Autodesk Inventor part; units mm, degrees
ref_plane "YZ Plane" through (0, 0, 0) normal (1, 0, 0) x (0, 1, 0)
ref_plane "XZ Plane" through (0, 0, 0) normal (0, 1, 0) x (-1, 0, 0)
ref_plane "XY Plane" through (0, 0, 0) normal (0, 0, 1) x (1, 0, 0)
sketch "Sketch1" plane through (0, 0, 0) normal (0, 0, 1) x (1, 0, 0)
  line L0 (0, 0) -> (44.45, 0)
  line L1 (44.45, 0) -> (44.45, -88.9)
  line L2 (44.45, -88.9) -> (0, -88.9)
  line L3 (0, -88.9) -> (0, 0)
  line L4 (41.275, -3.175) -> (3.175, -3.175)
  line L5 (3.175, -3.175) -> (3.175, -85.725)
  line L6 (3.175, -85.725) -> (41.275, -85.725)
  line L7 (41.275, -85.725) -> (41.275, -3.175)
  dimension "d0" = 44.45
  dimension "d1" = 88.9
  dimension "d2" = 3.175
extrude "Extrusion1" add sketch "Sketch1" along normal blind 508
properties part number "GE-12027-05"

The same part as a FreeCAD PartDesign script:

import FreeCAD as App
import Part
import Sketcher
Q = App.Units.Quantity

doc = App.newDocument("Part")
body = doc.addObject("PartDesign::Body", "Body")

# Sketch on XY plane
sketch1 = body.newObject("Sketcher::SketchObject", "Sketch")
sketch1.AttachmentSupport = (doc.getObject("XY_Plane"), [""])
sketch1.MapMode = "FlatFace"
sketch1.addGeometry([
    Part.LineSegment(App.Vector(44, 0, 0), App.Vector(0, 0, 0)),  # 0
    Part.LineSegment(App.Vector(0, 0, 0), App.Vector(0, -89, 0)),  # 1
    Part.LineSegment(App.Vector(0, -89, 0), App.Vector(44, -89, 0)),  # 2
    Part.LineSegment(App.Vector(44, -89, 0), App.Vector(44, 0, 0)),  # 3
    Part.LineSegment(App.Vector(3, -3, 0), App.Vector(41, -3, 0)),  # 4
    Part.LineSegment(App.Vector(41, -3, 0), App.Vector(41, -86, 0)),  # 5
    Part.LineSegment(App.Vector(41, -86, 0), App.Vector(3, -86, 0)),  # 6
    Part.LineSegment(App.Vector(3, -86, 0), App.Vector(3, -3, 0)),  # 7
], False)
sketch1.addConstraint([
    Sketcher.Constraint("Coincident", 0, 2, 1, 1),
    Sketcher.Constraint("Coincident", 1, 2, 2, 1),
    Sketcher.Constraint("Coincident", 2, 2, 3, 1),
    Sketcher.Constraint("Coincident", 3, 2, 0, 1),
    Sketcher.Constraint("Coincident", 4, 2, 5, 1),
    Sketcher.Constraint("Coincident", 5, 2, 6, 1),
    Sketcher.Constraint("Coincident", 6, 2, 7, 1),
    Sketcher.Constraint("Coincident", 7, 2, 4, 1),
    Sketcher.Constraint("Horizontal", 0),
    Sketcher.Constraint("Vertical", 1),
    Sketcher.Constraint("Horizontal", 2),
    Sketcher.Constraint("Vertical", 3),
    Sketcher.Constraint("Horizontal", 4),
    Sketcher.Constraint("Vertical", 5),
    Sketcher.Constraint("Horizontal", 6),
    Sketcher.Constraint("Vertical", 7),
    Sketcher.Constraint("Coincident", 0, 2, -1, 1),
    Sketcher.Constraint("DistanceY", 1, 2, 1, 1, Q("3.5 in")),
    Sketcher.Constraint("DistanceX", 0, 2, 0, 1, Q("1.75 in")),
    Sketcher.Constraint("DistanceX", 4, 1, 4, 2, Q("1.5 in")),
    Sketcher.Constraint("DistanceY", 4, 2, -1, 1, Q("0.125 in")),
    Sketcher.Constraint("DistanceX", -1, 1, 6, 2, Q("0.125 in")),
    Sketcher.Constraint("DistanceY", 2, 2, 5, 2, Q("0.125 in")),
])
pad1 = body.newObject("PartDesign::Pad", "Pad")
pad1.Profile = sketch1
pad1.Length = Q("20 in")

doc.recompute()
